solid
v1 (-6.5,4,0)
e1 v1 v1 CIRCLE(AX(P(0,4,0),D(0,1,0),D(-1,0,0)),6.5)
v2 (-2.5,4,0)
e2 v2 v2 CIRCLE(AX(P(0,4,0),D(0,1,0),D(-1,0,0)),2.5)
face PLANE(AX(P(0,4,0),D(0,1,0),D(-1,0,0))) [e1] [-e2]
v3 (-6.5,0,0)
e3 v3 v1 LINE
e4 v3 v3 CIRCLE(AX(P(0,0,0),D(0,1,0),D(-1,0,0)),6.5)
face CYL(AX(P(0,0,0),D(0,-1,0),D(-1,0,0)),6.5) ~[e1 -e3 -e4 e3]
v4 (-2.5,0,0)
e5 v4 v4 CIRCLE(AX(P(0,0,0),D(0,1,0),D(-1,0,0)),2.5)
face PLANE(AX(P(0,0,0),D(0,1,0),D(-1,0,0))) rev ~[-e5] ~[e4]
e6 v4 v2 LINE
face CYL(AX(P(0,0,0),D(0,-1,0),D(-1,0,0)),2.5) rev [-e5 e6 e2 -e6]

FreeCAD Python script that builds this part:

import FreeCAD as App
import Part
import Sketcher
from FreeCAD import Vector
Q = App.Units.Quantity

doc = App.newDocument("Part")
body = doc.addObject("PartDesign::Body", "Body")

# Sketch on XZ plane
sketch1 = doc.addObject("Sketcher::SketchObject", "Sketch")
body.addObject(sketch1)
sketch1.AttachmentSupport = (doc.XZ_Plane, [""])
sketch1.MapMode = "FlatFace"
sketch1.addGeometry(Part.Circle(Vector(0, 0, 0), Vector(0, 0, 1), 6.5), False)
sketch1.addGeometry(Part.Circle(Vector(0, 0, 0), Vector(0, 0, 1), 2.5), False)
sketch1.addConstraint(Sketcher.Constraint("Coincident", 0, 3, -1, 1))
sketch1.addConstraint(Sketcher.Constraint("Coincident", 1, 3, -1, 1))
sketch1.addConstraint(Sketcher.Constraint("Diameter", 0, Q("13 mm")))
sketch1.addConstraint(Sketcher.Constraint("Diameter", 1, Q("5 mm")))
pad1 = doc.addObject("PartDesign::Pad", "Pad")
body.addObject(pad1)
pad1.Profile = sketch1
pad1.Length = 4
pad1.Reversed = True

doc.recompute()
